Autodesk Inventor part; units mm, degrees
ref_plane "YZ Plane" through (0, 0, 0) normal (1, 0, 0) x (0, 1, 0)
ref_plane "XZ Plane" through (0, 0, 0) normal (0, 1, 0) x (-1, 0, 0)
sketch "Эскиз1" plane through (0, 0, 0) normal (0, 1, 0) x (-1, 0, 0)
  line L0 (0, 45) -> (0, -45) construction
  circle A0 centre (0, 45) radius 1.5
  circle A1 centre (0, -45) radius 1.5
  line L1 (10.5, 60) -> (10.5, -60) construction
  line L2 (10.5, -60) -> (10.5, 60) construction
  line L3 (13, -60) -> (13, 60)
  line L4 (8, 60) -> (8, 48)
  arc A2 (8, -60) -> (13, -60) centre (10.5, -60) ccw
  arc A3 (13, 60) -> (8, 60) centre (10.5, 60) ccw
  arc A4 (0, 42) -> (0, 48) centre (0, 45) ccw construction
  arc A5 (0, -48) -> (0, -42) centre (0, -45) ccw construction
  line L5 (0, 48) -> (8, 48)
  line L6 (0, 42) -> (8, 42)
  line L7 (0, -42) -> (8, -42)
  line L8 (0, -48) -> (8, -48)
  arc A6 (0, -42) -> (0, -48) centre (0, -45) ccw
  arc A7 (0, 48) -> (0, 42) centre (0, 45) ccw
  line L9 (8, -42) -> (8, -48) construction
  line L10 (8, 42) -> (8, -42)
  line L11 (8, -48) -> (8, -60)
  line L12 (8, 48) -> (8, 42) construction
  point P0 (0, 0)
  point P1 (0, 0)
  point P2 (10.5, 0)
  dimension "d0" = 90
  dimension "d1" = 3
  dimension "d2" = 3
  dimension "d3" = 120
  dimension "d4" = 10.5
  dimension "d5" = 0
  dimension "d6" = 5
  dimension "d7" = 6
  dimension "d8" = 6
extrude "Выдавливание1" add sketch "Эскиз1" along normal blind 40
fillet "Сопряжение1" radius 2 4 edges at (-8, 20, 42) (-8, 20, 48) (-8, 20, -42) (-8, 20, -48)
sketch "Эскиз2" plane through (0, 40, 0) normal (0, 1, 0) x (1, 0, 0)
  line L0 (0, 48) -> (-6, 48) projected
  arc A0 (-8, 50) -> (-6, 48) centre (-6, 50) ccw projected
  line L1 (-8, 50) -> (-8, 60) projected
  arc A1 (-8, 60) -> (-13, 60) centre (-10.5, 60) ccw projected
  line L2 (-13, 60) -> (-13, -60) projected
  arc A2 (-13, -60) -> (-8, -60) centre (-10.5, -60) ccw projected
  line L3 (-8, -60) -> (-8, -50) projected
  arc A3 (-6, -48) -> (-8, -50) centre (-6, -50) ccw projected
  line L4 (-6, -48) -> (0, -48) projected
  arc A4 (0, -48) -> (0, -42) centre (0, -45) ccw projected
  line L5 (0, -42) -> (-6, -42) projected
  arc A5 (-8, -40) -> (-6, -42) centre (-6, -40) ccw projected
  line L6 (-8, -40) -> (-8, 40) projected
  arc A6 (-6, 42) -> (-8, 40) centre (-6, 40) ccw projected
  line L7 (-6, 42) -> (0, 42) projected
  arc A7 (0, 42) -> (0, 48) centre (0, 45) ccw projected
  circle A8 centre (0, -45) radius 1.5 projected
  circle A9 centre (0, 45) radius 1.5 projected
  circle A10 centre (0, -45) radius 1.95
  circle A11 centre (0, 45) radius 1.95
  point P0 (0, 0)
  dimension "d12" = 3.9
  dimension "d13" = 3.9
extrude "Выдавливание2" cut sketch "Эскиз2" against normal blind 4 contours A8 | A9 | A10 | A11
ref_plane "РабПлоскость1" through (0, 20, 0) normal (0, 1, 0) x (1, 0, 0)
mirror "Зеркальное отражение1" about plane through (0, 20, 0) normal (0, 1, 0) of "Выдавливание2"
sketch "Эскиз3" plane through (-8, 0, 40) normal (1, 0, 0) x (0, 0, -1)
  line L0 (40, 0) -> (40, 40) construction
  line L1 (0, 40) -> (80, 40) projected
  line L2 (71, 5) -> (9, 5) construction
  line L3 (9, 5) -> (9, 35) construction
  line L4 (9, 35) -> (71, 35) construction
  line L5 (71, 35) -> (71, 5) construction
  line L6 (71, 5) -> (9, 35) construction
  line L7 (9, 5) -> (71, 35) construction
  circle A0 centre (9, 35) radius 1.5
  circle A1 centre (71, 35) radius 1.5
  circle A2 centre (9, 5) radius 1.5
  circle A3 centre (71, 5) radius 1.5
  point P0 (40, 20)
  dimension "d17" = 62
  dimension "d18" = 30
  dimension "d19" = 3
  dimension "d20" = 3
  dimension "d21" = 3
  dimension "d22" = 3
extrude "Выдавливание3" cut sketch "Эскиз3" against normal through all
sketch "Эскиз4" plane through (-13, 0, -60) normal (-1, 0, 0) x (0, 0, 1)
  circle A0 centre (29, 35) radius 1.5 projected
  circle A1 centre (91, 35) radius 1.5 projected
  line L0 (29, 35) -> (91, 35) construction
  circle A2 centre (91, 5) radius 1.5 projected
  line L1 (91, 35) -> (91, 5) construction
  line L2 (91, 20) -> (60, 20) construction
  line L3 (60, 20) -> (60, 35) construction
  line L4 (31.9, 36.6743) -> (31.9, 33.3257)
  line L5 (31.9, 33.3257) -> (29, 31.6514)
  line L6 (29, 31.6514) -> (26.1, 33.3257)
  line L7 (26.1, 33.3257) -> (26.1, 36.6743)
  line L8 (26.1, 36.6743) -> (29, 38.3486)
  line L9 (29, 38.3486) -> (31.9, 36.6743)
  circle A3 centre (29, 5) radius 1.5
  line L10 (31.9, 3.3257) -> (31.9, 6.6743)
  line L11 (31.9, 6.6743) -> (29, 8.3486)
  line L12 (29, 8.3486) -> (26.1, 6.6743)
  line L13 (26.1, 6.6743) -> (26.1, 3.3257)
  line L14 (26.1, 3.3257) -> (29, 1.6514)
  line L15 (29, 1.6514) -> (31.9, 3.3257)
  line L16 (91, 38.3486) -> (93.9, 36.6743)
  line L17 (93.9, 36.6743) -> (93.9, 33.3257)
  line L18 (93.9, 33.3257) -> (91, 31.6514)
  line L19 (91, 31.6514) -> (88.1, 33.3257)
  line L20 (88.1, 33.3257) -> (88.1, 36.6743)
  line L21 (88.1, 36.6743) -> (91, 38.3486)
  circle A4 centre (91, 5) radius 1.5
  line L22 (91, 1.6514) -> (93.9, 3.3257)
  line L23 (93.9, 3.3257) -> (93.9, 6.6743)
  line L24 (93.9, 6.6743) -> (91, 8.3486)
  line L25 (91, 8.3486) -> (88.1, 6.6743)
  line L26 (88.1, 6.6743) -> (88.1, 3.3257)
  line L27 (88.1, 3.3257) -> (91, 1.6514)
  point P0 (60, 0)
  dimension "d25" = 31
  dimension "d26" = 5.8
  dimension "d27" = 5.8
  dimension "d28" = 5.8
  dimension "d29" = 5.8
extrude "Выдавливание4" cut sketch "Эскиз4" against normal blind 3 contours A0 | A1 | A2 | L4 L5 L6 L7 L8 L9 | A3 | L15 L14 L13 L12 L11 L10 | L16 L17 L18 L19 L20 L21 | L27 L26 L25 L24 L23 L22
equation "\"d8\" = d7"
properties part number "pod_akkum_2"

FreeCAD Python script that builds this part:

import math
import FreeCAD as App
import Part
import Sketcher
Q = App.Units.Quantity


def edges_at(feature, points):
    """Names of the edges that pass closest to the given points."""
    edges = feature.Shape.Edges
    near = lambda p: min(range(len(edges)), key=lambda i: edges[i].distToShape(Part.Vertex(*p))[0])
    return sorted({f"Edge{near(p) + 1}" for p in points})

doc = App.newDocument("Part")
body = doc.addObject("PartDesign::Body", "Body")

sketch1 = doc.addObject("Sketcher::SketchObject", "Sketch")
body.addObject(sketch1)
sketch1.AttachmentSupport = (doc.XZ_Plane, [""])
sketch1.MapMode = "FlatFace"
sketch1.addGeometry([
    Part.ArcOfCircle(Part.Circle(App.Vector(-10.5, -60, 0), App.Vector(0, 0, 1), 2.5), math.radians(180), math.radians(360)),
    Part.LineSegment(App.Vector(-13, -60, 0), App.Vector(-13, 60, 0)),
    Part.ArcOfCircle(Part.Circle(App.Vector(-10.5, 60, 0), App.Vector(0, 0, 1), 2.5), math.radians(0), math.radians(180)),
    Part.LineSegment(App.Vector(-8, 60, 0), App.Vector(-8, 48, 0)),
    Part.LineSegment(App.Vector(-8, 48, 0), App.Vector(0, 48, 0)),
    Part.ArcOfCircle(Part.Circle(App.Vector(0, 45, 0), App.Vector(0, 0, 1), 3), math.radians(-90), math.radians(90)),
    Part.LineSegment(App.Vector(0, 42, 0), App.Vector(-8, 42, 0)),
    Part.LineSegment(App.Vector(-8, 42, 0), App.Vector(-8, -42, 0)),
    Part.LineSegment(App.Vector(-8, -42, 0), App.Vector(0, -42, 0)),
    Part.ArcOfCircle(Part.Circle(App.Vector(0, -45, 0), App.Vector(0, 0, 1), 3), math.radians(-90), math.radians(90)),
    Part.LineSegment(App.Vector(0, -48, 0), App.Vector(-8, -48, 0)),
    Part.LineSegment(App.Vector(-8, -48, 0), App.Vector(-8, -60, 0)),
    Part.Circle(App.Vector(0, -45, 0), App.Vector(0, 0, 1), 1.5),
    Part.Circle(App.Vector(0, 45, 0), App.Vector(0, 0, 1), 1.5),
], False)
sketch1.addConstraint([
    Sketcher.Constraint("Tangent", 0, 1, 1, 1),
    Sketcher.Constraint("Tangent", 1, 2, 2, 2),
    Sketcher.Constraint("Tangent", 2, 1, 3, 1),
    Sketcher.Constraint("Coincident", 3, 2, 4, 1),
    Sketcher.Constraint("Tangent", 4, 2, 5, 2),
    Sketcher.Constraint("Tangent", 5, 1, 6, 1),
    Sketcher.Constraint("Coincident", 6, 2, 7, 1),
    Sketcher.Constraint("Coincident", 7, 2, 8, 1),
    Sketcher.Constraint("Tangent", 8, 2, 9, 2),
    Sketcher.Constraint("Tangent", 9, 1, 10, 1),
    Sketcher.Constraint("Coincident", 10, 2, 11, 1),
    Sketcher.Constraint("Tangent", 11, 2, 0, 2),
    Sketcher.Constraint("Vertical", 1),
    Sketcher.Constraint("Vertical", 3),
    Sketcher.Constraint("Horizontal", 4),
    Sketcher.Constraint("Horizontal", 6),
    Sketcher.Constraint("Vertical", 7),
    Sketcher.Constraint("Horizontal", 8),
    Sketcher.Constraint("Horizontal", 10),
    Sketcher.Constraint("Vertical", 11),
    Sketcher.Constraint("Coincident", 12, 3, 9, 3),
    Sketcher.Constraint("Coincident", 13, 3, 5, 3),
    Sketcher.Constraint("Equal", 0, 2),
    Sketcher.Constraint("Equal", 5, 9),
    Sketcher.Constraint("Equal", 12, 13),
    Sketcher.Constraint("Symmetric", 5, 3, 9, 3, -1, 1),
    Sketcher.Constraint("PointOnObject", 5, 3, -2),
    Sketcher.Constraint("Vertical", 3, 2, 6, 2),
    Sketcher.Constraint("Equal", 3, 11),
    Sketcher.Constraint("Diameter", 12, 3.0),
    Sketcher.Constraint("Radius", 5, 3.0),
    Sketcher.Constraint("Radius", 0, 2.5),
    Sketcher.Constraint("DistanceY", 1, 1, 1, 2, 120.0),
    Sketcher.Constraint("DistanceY", 9, 3, 5, 3, 90.0),
    Sketcher.Constraint("DistanceX", 0, 3, -1, 1, 10.5),
])
pad1 = doc.addObject("PartDesign::Pad", "Pad")
body.addObject(pad1)
pad1.Profile = sketch1
pad1.Length = 40
pad1.Reversed = True
doc.recompute()

fillet = doc.addObject("PartDesign::Fillet", "Fillet")
body.addObject(fillet)
fillet.Base = (pad1, edges_at(pad1, [
    (-8, 20, 42),
    (-8, 20, 48),
    (-8, 20, -42),
    (-8, 20, -48),
]))
fillet.Radius = 2

sketch2 = doc.addObject("Sketcher::SketchObject", "Sketch001")
body.addObject(sketch2)
sketch2.AttachmentSupport = (doc.XZ_Plane, [""])
sketch2.MapMode = "FlatFace"
sketch2.AttachmentOffset = App.Placement(App.Vector(0, 0, -40), App.Rotation())
sketch2.addGeometry([
    Part.Circle(App.Vector(0, 45, 0), App.Vector(0, 0, 1), 1.9),
    Part.Circle(App.Vector(0, -45, 0), App.Vector(0, 0, 1), 1.9),
], False)
sketch2.addConstraint([
    Sketcher.Constraint("Equal", 0, 1),
    Sketcher.Constraint("Symmetric", 0, 3, 1, 3, -1, 1),
    Sketcher.Constraint("PointOnObject", 0, 3, -2),
    Sketcher.Constraint("Diameter", 0, 3.9),
    Sketcher.Constraint("DistanceY", -1, 1, 0, 3, 45.0),
])
pocket1 = doc.addObject("PartDesign::Pocket", "Pocket")
body.addObject(pocket1)
pocket1.Profile = sketch2
pocket1.Length = 4
pocket1.Reversed = True
doc.recompute()

datumplane = doc.addObject("PartDesign::Plane", "DatumPlane")
body.addObject(datumplane)
datumplane.AttachmentSupport = (doc.XZ_Plane, [""])
datumplane.MapMode = "FlatFace"
datumplane.AttachmentOffset = App.Placement(App.Vector(0, 0, -20), App.Rotation())
mirrored = doc.addObject("PartDesign::Mirrored", "Mirrored")
body.addObject(mirrored)
mirrored.Originals = [pocket1]
mirrored.MirrorPlane = (datumplane, [""])
body.Tip = mirrored

sketch3 = doc.addObject("Sketcher::SketchObject", "Sketch002")
body.addObject(sketch3)
sketch3.AttachmentSupport = (doc.YZ_Plane, [""])
sketch3.MapMode = "FlatFace"
sketch3.AttachmentOffset = App.Placement(App.Vector(0, 0, -8), App.Rotation())
sketch3.addGeometry([
    Part.Circle(App.Vector(35, 31, 0), App.Vector(0, 0, 1), 1.5),
    Part.Circle(App.Vector(35, -31, 0), App.Vector(0, 0, 1), 1.5),
    Part.Circle(App.Vector(5, 31, 0), App.Vector(0, 0, 1), 1.5),
    Part.Circle(App.Vector(5, -31, 0), App.Vector(0, 0, 1), 1.5),
], False)
sketch3.addConstraint([
    Sketcher.Constraint("Equal", 0, 1),
    Sketcher.Constraint("Equal", 1, 2),
    Sketcher.Constraint("Equal", 2, 3),
    Sketcher.Constraint("Symmetric", 0, 3, 1, 3, -1),
    Sketcher.Constraint("Symmetric", 2, 3, 3, 3, -1),
    Sketcher.Constraint("Horizontal", 0, 3, 2, 3),
    Sketcher.Constraint("Diameter", 0, 3.0),
    Sketcher.Constraint("DistanceY", 1, 3, 0, 3, 62.0),
    Sketcher.Constraint("DistanceX", 2, 3, 0, 3, 30.0),
    Sketcher.Constraint("DistanceX", -1, 1, 0, 3, 35.0),
])
pocket2 = doc.addObject("PartDesign::Pocket", "Pocket001")
body.addObject(pocket2)
pocket2.Profile = sketch3
pocket2.Type = "ThroughAll"

sketch4 = doc.addObject("Sketcher::SketchObject", "Sketch003")
body.addObject(sketch4)
sketch4.AttachmentSupport = (doc.YZ_Plane, [""])
sketch4.MapMode = "FlatFace"
sketch4.AttachmentOffset = App.Placement(App.Vector(0, 0, -13), App.Rotation())
sketch4.addGeometry([
    Part.LineSegment(App.Vector(33.3, -28.1, 0), App.Vector(36.7, -28.1, 0)),
    Part.LineSegment(App.Vector(36.7, -28.1, 0), App.Vector(38.3, -31, 0)),
    Part.LineSegment(App.Vector(38.3, -31, 0), App.Vector(36.7, -33.9, 0)),
    Part.LineSegment(App.Vector(36.7, -33.9, 0), App.Vector(33.3, -33.9, 0)),
    Part.LineSegment(App.Vector(33.3, -33.9, 0), App.Vector(31.7, -31, 0)),
    Part.LineSegment(App.Vector(31.7, -31, 0), App.Vector(33.3, -28.1, 0)),
    Part.LineSegment(App.Vector(36.7, 33.9, 0), App.Vector(38.3, 31, 0)),
    Part.LineSegment(App.Vector(38.3, 31, 0), App.Vector(36.7, 28.1, 0)),
    Part.LineSegment(App.Vector(36.7, 28.1, 0), App.Vector(33.3, 28.1, 0)),
    Part.LineSegment(App.Vector(33.3, 28.1, 0), App.Vector(31.7, 31, 0)),
    Part.LineSegment(App.Vector(31.7, 31, 0), App.Vector(33.3, 33.9, 0)),
    Part.LineSegment(App.Vector(33.3, 33.9, 0), App.Vector(36.7, 33.9, 0)),
    Part.LineSegment(App.Vector(3.3, 28.1, 0), App.Vector(1.7, 31, 0)),
    Part.LineSegment(App.Vector(1.7, 31, 0), App.Vector(3.3, 33.9, 0)),
    Part.LineSegment(App.Vector(3.3, 33.9, 0), App.Vector(6.7, 33.9, 0)),
    Part.LineSegment(App.Vector(6.7, 33.9, 0), App.Vector(8.3, 31, 0)),
    Part.LineSegment(App.Vector(8.3, 31, 0), App.Vector(6.7, 28.1, 0)),
    Part.LineSegment(App.Vector(6.7, 28.1, 0), App.Vector(3.3, 28.1, 0)),
    Part.LineSegment(App.Vector(1.7, -31, 0), App.Vector(3.3, -28.1, 0)),
    Part.LineSegment(App.Vector(3.3, -28.1, 0), App.Vector(6.7, -28.1, 0)),
    Part.LineSegment(App.Vector(6.7, -28.1, 0), App.Vector(8.3, -31, 0)),
    Part.LineSegment(App.Vector(8.3, -31, 0), App.Vector(6.7, -33.9, 0)),
    Part.LineSegment(App.Vector(6.7, -33.9, 0), App.Vector(3.3, -33.9, 0)),
    Part.LineSegment(App.Vector(3.3, -33.9, 0), App.Vector(1.7, -31, 0)),
], False)
sketch4.addConstraint([
    Sketcher.Constraint("Coincident", 0, 2, 1, 1),
    Sketcher.Constraint("Coincident", 1, 2, 2, 1),
    Sketcher.Constraint("Coincident", 2, 2, 3, 1),
    Sketcher.Constraint("Coincident", 3, 2, 4, 1),
    Sketcher.Constraint("Coincident", 4, 2, 5, 1),
    Sketcher.Constraint("Coincident", 5, 2, 0, 1),
    Sketcher.Constraint("Coincident", 6, 2, 7, 1),
    Sketcher.Constraint("Coincident", 7, 2, 8, 1),
    Sketcher.Constraint("Coincident", 8, 2, 9, 1),
    Sketcher.Constraint("Coincident", 9, 2, 10, 1),
    Sketcher.Constraint("Coincident", 10, 2, 11, 1),
    Sketcher.Constraint("Coincident", 11, 2, 6, 1),
    Sketcher.Constraint("Coincident", 12, 2, 13, 1),
    Sketcher.Constraint("Coincident", 13, 2, 14, 1),
    Sketcher.Constraint("Coincident", 14, 2, 15, 1),
    Sketcher.Constraint("Coincident", 15, 2, 16, 1),
    Sketcher.Constraint("Coincident", 16, 2, 17, 1),
    Sketcher.Constraint("Coincident", 17, 2, 12, 1),
    Sketcher.Constraint("Coincident", 18, 2, 19, 1),
    Sketcher.Constraint("Coincident", 19, 2, 20, 1),
    Sketcher.Constraint("Coincident", 20, 2, 21, 1),
    Sketcher.Constraint("Coincident", 21, 2, 22, 1),
    Sketcher.Constraint("Coincident", 22, 2, 23, 1),
    Sketcher.Constraint("Coincident", 23, 2, 18, 1),
    Sketcher.Constraint("Horizontal", 0),
    Sketcher.Constraint("Horizontal", 3),
    Sketcher.Constraint("Horizontal", 8),
    Sketcher.Constraint("Horizontal", 11),
    Sketcher.Constraint("Horizontal", 14),
    Sketcher.Constraint("Horizontal", 17),
    Sketcher.Constraint("Horizontal", 19),
    Sketcher.Constraint("Horizontal", 22),
    Sketcher.Constraint("Symmetric", 1, 2, 6, 2, -1),
    Sketcher.Constraint("Symmetric", 0, 2, 7, 2, -1),
    Sketcher.Constraint("Symmetric", 4, 2, 9, 2, -1),
    Sketcher.Constraint("Symmetric", 3, 2, 10, 2, -1),
    Sketcher.Constraint("Symmetric", 17, 2, 18, 2, -1),
    Sketcher.Constraint("Symmetric", 15, 2, 20, 2, -1),
    Sketcher.Constraint("Symmetric", 14, 2, 21, 2, -1),
    Sketcher.Constraint("Symmetric", 12, 2, 23, 2, -1),
    Sketcher.Constraint("Parallel", 1, 4),
    Sketcher.Constraint("Parallel", 2, 5),
    Sketcher.Constraint("Parallel", 4, 6),
    Sketcher.Constraint("Parallel", 5, 7),
    Sketcher.Constraint("Parallel", 6, 9),
    Sketcher.Constraint("Parallel", 9, 12),
    Sketcher.Constraint("Parallel", 10, 13),
    Sketcher.Constraint("Parallel", 12, 15),
    Sketcher.Constraint("Parallel", 13, 16),
    Sketcher.Constraint("Parallel", 15, 20),
    Sketcher.Constraint("Parallel", 20, 23),
    Sketcher.Constraint("Horizontal", 1, 2, 4, 2),
    Sketcher.Constraint("Horizontal", 9, 2, 12, 2),
    Sketcher.Constraint("Horizontal", 11, 2, 13, 2),
    Sketcher.Constraint("Horizontal", 12, 2, 15, 2),
    Sketcher.Constraint("Horizontal", 8, 2, 16, 2),
    Sketcher.Constraint("Vertical", 0, 2, 2, 2),
    Sketcher.Constraint("Equal", 11, 14),
    Sketcher.Constraint("DistanceY", 1, 2, -1, 1, 31.0),
    Sketcher.Constraint("DistanceY", 2, 2, 0, 2, 5.8),
    Sketcher.Constraint("Angle", 1, Q("-60.0002 deg")),
    Sketcher.Constraint("DistanceX", 12, 2, 9, 2, 30.0),
    Sketcher.Constraint("DistanceX", 0, 1, 0, 2, 3.3486),
    Sketcher.Constraint("DistanceX", -1, 1, 0, 2, 36.6743),
])
pocket3 = doc.addObject("PartDesign::Pocket", "Pocket002")
body.addObject(pocket3)
pocket3.Profile = sketch4
pocket3.Length = 3
pocket3.Reversed = True

doc.recompute()
